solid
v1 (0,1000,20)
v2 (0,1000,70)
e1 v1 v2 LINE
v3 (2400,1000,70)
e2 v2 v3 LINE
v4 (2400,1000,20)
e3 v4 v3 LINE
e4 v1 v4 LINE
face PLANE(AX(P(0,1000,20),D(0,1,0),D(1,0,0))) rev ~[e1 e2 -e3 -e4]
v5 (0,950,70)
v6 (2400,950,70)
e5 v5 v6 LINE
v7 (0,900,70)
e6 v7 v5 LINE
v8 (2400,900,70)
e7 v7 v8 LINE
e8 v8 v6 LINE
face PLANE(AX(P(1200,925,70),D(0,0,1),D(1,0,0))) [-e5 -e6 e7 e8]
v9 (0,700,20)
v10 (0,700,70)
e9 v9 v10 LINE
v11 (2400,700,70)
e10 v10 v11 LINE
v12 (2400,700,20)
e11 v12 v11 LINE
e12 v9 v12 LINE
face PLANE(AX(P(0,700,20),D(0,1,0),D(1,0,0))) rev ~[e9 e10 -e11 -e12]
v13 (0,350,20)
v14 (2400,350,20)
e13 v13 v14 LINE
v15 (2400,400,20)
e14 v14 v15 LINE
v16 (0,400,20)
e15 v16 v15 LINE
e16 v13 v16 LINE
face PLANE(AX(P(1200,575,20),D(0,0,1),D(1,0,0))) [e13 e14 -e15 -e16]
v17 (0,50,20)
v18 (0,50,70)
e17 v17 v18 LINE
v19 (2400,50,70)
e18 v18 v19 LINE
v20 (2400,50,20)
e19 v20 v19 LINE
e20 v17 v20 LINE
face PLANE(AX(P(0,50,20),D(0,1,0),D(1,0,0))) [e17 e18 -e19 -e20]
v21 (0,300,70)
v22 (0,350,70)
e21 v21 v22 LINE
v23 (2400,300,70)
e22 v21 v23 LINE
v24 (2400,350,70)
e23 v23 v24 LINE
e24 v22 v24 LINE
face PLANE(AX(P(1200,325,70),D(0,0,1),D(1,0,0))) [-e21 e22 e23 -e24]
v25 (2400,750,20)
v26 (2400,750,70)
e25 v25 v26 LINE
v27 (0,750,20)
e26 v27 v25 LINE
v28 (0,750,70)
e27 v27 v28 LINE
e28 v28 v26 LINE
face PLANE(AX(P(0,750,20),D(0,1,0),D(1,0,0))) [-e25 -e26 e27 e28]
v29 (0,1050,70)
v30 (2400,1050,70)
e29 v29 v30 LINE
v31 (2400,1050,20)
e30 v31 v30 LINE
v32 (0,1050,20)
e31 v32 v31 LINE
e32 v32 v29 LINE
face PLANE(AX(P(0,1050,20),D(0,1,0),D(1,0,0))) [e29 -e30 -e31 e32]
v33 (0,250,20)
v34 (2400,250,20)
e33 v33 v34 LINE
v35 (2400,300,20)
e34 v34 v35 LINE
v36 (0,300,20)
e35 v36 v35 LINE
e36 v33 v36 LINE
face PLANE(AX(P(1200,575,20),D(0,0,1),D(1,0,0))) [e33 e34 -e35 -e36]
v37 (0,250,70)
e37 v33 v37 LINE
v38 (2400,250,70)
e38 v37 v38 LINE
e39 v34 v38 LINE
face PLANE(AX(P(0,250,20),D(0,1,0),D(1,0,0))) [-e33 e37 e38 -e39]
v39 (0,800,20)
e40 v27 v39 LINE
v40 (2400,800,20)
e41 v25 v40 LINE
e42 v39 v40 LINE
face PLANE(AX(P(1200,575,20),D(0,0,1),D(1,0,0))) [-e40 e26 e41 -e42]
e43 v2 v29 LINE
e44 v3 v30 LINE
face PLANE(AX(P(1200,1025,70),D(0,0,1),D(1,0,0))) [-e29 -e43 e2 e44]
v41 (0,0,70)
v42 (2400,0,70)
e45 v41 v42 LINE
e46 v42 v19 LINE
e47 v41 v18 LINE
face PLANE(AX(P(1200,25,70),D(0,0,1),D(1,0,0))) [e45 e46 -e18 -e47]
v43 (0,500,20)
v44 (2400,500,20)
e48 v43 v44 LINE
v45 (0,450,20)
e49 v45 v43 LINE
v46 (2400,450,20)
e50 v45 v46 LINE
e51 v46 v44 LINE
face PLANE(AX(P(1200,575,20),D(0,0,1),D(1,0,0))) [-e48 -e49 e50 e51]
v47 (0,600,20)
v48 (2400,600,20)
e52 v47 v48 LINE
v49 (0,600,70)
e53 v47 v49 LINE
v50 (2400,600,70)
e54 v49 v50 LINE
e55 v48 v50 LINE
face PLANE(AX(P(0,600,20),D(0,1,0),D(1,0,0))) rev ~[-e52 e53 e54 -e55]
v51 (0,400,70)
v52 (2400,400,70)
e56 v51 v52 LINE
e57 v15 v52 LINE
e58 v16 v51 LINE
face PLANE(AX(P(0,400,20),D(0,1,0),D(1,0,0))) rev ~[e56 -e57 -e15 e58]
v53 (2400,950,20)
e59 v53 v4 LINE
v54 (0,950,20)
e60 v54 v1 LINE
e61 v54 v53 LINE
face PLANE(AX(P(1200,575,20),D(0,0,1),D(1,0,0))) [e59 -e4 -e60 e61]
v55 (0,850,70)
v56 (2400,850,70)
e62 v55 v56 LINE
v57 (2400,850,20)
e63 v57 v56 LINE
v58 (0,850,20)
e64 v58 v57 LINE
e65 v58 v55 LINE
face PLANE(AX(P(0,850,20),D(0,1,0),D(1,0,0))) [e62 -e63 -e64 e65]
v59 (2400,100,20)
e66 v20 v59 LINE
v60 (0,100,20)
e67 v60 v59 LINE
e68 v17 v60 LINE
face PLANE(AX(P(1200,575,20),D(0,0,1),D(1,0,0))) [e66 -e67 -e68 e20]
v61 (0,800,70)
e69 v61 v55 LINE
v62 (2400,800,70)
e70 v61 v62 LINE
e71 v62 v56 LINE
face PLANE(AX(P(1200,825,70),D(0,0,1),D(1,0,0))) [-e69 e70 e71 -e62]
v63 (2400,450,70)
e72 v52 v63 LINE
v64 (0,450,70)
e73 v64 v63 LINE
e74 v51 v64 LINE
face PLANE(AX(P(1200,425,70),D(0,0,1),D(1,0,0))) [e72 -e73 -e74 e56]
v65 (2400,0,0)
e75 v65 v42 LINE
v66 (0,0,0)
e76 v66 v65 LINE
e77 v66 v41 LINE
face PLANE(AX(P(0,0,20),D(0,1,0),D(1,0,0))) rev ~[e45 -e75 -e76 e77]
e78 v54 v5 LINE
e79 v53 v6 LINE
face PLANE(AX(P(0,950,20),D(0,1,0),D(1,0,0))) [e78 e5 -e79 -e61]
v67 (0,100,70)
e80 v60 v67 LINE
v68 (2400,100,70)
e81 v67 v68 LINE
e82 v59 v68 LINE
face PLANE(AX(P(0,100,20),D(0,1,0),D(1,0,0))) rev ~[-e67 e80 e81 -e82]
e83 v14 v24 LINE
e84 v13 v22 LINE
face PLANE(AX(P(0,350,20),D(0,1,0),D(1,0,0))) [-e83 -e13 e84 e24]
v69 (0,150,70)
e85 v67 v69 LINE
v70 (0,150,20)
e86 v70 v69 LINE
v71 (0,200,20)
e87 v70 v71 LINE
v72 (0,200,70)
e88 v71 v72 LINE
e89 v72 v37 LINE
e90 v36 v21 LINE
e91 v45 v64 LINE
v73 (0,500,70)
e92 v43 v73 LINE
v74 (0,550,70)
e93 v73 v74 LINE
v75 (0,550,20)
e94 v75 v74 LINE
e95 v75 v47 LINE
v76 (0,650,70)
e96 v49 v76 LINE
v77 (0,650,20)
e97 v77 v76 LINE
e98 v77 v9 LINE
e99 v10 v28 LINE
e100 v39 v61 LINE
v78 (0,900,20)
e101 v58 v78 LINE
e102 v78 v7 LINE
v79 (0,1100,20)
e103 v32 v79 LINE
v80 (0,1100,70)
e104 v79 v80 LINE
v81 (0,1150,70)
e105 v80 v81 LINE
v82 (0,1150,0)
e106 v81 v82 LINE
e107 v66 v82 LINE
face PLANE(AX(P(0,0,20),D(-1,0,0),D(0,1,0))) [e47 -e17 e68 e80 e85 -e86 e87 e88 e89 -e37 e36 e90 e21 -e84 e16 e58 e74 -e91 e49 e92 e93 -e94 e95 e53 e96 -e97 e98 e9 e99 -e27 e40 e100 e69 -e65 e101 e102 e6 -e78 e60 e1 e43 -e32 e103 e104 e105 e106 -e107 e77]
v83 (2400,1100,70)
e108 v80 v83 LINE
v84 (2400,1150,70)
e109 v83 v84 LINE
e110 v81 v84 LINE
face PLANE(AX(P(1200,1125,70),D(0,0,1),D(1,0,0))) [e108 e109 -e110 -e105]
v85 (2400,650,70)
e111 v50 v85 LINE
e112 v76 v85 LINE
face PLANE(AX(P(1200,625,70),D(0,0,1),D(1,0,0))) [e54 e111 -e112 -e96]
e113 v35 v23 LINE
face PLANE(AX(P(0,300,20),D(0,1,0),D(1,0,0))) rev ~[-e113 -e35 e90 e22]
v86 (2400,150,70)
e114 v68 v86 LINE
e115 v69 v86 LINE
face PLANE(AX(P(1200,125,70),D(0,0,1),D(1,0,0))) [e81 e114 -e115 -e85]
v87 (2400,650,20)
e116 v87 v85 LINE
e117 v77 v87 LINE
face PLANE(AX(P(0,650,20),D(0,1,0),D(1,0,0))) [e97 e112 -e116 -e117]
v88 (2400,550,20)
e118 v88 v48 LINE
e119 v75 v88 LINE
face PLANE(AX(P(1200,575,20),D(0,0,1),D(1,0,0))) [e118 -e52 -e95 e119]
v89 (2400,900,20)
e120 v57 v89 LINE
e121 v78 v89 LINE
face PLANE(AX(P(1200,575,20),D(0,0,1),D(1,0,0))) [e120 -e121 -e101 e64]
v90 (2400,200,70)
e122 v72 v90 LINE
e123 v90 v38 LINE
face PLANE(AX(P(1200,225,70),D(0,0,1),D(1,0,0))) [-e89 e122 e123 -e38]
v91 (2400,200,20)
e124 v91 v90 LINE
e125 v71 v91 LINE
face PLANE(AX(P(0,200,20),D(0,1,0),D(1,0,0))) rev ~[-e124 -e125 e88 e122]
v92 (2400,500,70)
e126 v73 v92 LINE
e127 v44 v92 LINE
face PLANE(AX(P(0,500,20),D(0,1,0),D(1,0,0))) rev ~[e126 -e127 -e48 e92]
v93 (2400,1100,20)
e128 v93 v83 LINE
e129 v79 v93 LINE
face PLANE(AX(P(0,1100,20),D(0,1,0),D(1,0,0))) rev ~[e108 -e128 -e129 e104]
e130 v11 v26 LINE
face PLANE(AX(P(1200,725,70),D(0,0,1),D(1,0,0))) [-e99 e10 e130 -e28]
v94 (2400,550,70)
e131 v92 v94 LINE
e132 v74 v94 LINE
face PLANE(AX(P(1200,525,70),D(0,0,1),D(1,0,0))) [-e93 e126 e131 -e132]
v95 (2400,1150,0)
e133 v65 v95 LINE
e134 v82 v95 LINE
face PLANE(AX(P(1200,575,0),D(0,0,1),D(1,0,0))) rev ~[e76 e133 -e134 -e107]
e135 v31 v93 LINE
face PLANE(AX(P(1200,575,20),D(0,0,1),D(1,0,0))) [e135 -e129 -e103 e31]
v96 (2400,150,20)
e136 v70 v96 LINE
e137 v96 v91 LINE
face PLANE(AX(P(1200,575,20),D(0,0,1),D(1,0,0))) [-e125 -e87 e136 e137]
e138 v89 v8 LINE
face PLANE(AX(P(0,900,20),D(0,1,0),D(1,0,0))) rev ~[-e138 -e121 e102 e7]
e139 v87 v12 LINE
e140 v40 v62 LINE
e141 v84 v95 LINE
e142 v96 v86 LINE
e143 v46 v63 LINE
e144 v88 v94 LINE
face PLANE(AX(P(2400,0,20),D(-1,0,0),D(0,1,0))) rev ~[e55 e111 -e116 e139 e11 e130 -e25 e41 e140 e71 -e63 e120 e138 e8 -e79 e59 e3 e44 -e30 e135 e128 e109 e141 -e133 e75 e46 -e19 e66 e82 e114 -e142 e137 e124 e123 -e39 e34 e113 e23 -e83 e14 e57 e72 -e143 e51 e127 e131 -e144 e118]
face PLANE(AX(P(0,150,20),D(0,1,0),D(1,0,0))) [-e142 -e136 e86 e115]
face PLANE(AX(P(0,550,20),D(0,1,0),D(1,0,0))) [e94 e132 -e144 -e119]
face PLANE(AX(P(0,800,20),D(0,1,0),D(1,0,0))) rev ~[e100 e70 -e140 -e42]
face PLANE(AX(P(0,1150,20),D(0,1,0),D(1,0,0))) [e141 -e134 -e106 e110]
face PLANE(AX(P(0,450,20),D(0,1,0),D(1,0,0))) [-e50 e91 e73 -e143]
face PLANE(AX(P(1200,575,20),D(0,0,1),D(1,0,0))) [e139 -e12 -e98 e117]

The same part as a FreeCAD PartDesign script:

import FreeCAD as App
import Part
import Sketcher

V = App.Vector
Q = App.Units.Quantity

doc = App.newDocument("Part")
params = doc.addObject("Spreadsheet::Sheet", "Params")
for row, (alias, value) in enumerate([
    ("sketch1_width", "2400 mm"),
    ("sketch1_height", "1150 mm"),
    ("pad1_length", "20 mm"),
    ("sketch2_width", "2400 mm"),
    ("sketch2_height", "50 mm"),
    ("pad2_length", "50 mm"),
    ("linearpattern_pitch", "100 mm"),
], start=1):
    params.set(f"A{row}", alias)
    params.set(f"B{row}", "=" + value)
    params.setAlias(f"B{row}", alias)

body = doc.addObject("PartDesign::Body", "Body")

# Sketch on XY plane
sketch1 = body.newObject("Sketcher::SketchObject", "Sketch")
sketch1.AttachmentSupport = (doc.getObject("XY_Plane"), [""])
sketch1.MapMode = "FlatFace"
sketch1.addGeometry([
    Part.LineSegment(V(0, 1150, 0), V(0, 0, 0)),
    Part.LineSegment(V(0, 0, 0), V(2400, 0, 0)),
    Part.LineSegment(V(2400, 0, 0), V(2400, 1150, 0)),
    Part.LineSegment(V(2400, 1150, 0), V(0, 1150, 0)),
], False)
sketch1.addConstraint([
    Sketcher.Constraint("Coincident", 0, 2, 1, 1),
    Sketcher.Constraint("Coincident", 1, 2, 2, 1),
    Sketcher.Constraint("Coincident", 2, 2, 3, 1),
    Sketcher.Constraint("Coincident", 3, 2, 0, 1),
    Sketcher.Constraint("Vertical", 0),
    Sketcher.Constraint("Horizontal", 1),
    Sketcher.Constraint("Vertical", 2),
    Sketcher.Constraint("Horizontal", 3),
    Sketcher.Constraint("Coincident", 0, 2, -1, 1),
    Sketcher.Constraint("DistanceX", 1, 1, 1, 2, Q("2400 mm")),
    Sketcher.Constraint("DistanceY", 0, 2, 0, 1, Q("1150 mm")),
])
sketch1.setExpression("Constraints[9]", "Params.sketch1_width")
sketch1.setExpression("Constraints[10]", "Params.sketch1_height")
pad1 = body.newObject("PartDesign::Pad", "Pad")
pad1.Profile = sketch1
pad1.setExpression("Length", "Params.pad1_length")

# Sketch on XY plane
sketch2 = body.newObject("Sketcher::SketchObject", "Sketch001")
sketch2.AttachmentSupport = (doc.getObject("XY_Plane"), [""])
sketch2.MapMode = "FlatFace"
sketch2.AttachmentOffset = App.Placement(V(0, 0, 20), App.Rotation())
sketch2.addGeometry([
    Part.LineSegment(V(0, 1150, 0), V(0, 1100, 0)),
    Part.LineSegment(V(0, 1100, 0), V(2400, 1100, 0)),
    Part.LineSegment(V(2400, 1100, 0), V(2400, 1150, 0)),
    Part.LineSegment(V(2400, 1150, 0), V(0, 1150, 0)),
], False)
sketch2.addConstraint([
    Sketcher.Constraint("Coincident", 0, 2, 1, 1),
    Sketcher.Constraint("Coincident", 1, 2, 2, 1),
    Sketcher.Constraint("Coincident", 2, 2, 3, 1),
    Sketcher.Constraint("Coincident", 3, 2, 0, 1),
    Sketcher.Constraint("Vertical", 0),
    Sketcher.Constraint("Horizontal", 1),
    Sketcher.Constraint("Vertical", 2),
    Sketcher.Constraint("Horizontal", 3),
    Sketcher.Constraint("PointOnObject", 0, 2, -2),
    Sketcher.Constraint("DistanceX", 1, 1, 1, 2, Q("2400 mm")),
    Sketcher.Constraint("DistanceY", 0, 2, 0, 1, Q("50 mm")),
    Sketcher.Constraint("DistanceY", -1, 1, 0, 2, Q("1100 mm")),
])
sketch2.setExpression("Constraints[9]", "Params.sketch2_width")
sketch2.setExpression("Constraints[10]", "Params.sketch2_height")
pad2 = body.newObject("PartDesign::Pad", "Pad001")
pad2.Profile = sketch2
pad2.setExpression("Length", "Params.pad2_length")
doc.recompute()

linearpattern = body.newObject("PartDesign::LinearPattern", "LinearPattern")
linearpattern.Originals = [pad2]
linearpattern.Direction = (doc.getObject("Y_Axis"), [""])
linearpattern.Mode = "offset"
linearpattern.setExpression("Offset", "Params.linearpattern_pitch")
linearpattern.Occurrences = 12
linearpattern.Reversed = True
body.Tip = linearpattern

doc.recompute()
